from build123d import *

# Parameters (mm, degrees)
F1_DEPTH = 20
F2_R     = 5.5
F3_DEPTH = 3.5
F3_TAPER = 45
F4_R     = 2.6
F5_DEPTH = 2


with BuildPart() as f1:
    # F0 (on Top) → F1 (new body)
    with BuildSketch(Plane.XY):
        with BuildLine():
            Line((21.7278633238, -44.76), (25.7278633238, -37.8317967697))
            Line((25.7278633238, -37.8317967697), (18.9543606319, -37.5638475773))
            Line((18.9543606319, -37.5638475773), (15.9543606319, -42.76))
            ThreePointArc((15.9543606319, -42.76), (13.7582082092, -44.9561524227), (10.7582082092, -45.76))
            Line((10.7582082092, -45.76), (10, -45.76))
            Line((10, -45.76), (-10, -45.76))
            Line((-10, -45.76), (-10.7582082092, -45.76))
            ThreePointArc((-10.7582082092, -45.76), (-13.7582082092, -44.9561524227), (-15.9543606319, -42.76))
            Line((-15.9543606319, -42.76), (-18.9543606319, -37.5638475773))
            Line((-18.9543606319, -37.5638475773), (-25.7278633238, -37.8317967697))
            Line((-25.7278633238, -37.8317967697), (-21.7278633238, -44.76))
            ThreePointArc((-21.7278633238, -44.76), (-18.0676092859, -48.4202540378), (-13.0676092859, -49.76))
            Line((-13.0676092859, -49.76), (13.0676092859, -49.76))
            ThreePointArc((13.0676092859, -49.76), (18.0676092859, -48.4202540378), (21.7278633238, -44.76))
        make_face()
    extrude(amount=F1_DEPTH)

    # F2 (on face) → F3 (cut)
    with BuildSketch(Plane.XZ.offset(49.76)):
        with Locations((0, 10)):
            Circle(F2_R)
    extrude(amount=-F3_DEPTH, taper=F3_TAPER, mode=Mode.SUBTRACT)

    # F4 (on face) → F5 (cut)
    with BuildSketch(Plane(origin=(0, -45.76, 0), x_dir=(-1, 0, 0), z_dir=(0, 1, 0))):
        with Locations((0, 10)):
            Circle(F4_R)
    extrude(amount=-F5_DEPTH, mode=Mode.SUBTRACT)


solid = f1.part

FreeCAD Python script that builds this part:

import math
import FreeCAD as App
import Part
import Sketcher
from FreeCAD import Vector
Q = App.Units.Quantity

doc = App.newDocument("Part")
body = doc.addObject("PartDesign::Body", "Body")

# Sketch on XY plane
sketch1 = body.newObject("Sketcher::SketchObject", "Sketch")
sketch1.AttachmentSupport = (doc.getObject("XY_Plane"), [""])
sketch1.MapMode = "FlatFace"
sketch1.addGeometry([
    Part.LineSegment(Vector(21.727863, -44.76, 0), Vector(25.727863, -37.831797, 0)),  # 0
    Part.LineSegment(Vector(25.727863, -37.831797, 0), Vector(18.954361, -37.563848, 0)),  # 1
    Part.LineSegment(Vector(18.954361, -37.563848, 0), Vector(15.954361, -42.76, 0)),  # 2
    Part.ArcOfCircle(Part.Circle(Vector(10.758208, -39.76, 0), Vector(0, 0, 1), 6), math.radians(-90), math.radians(-30)),  # 3
    Part.LineSegment(Vector(10.758208, -45.76, 0), Vector(-10.758208, -45.76, 0)),  # 4
    Part.ArcOfCircle(Part.Circle(Vector(-10.758208, -39.76, 0), Vector(0, 0, 1), 6), math.radians(-150), math.radians(-90)),  # 5
    Part.LineSegment(Vector(-15.954361, -42.76, 0), Vector(-18.954361, -37.563848, 0)),  # 6
    Part.LineSegment(Vector(-18.954361, -37.563848, 0), Vector(-25.727863, -37.831797, 0)),  # 7
    Part.LineSegment(Vector(-25.727863, -37.831797, 0), Vector(-21.727863, -44.76, 0)),  # 8
    Part.ArcOfCircle(Part.Circle(Vector(-13.067609, -39.76, 0), Vector(0, 0, 1), 10), math.radians(-150), math.radians(-90)),  # 9
    Part.LineSegment(Vector(-13.067609, -49.76, 0), Vector(13.067609, -49.76, 0)),  # 10
    Part.ArcOfCircle(Part.Circle(Vector(13.067609, -39.76, 0), Vector(0, 0, 1), 10), math.radians(-90), math.radians(-30)),  # 11
], False)
sketch1.addConstraint([
    Sketcher.Constraint("Coincident", 0, 2, 1, 1),
    Sketcher.Constraint("Coincident", 1, 2, 2, 1),
    Sketcher.Constraint("Tangent", 2, 2, 3, 2),
    Sketcher.Constraint("Tangent", 3, 1, 4, 1),
    Sketcher.Constraint("Tangent", 4, 2, 5, 2),
    Sketcher.Constraint("Tangent", 5, 1, 6, 1),
    Sketcher.Constraint("Coincident", 6, 2, 7, 1),
    Sketcher.Constraint("Coincident", 7, 2, 8, 1),
    Sketcher.Constraint("Tangent", 8, 2, 9, 1),
    Sketcher.Constraint("Tangent", 9, 2, 10, 1),
    Sketcher.Constraint("Tangent", 10, 2, 11, 1),
    Sketcher.Constraint("Tangent", 11, 2, 0, 1),
    Sketcher.Constraint("Horizontal", 4),
    Sketcher.Constraint("Horizontal", 10),
    Sketcher.Constraint("Equal", 3, 5),
    Sketcher.Constraint("Equal", 9, 11),
    Sketcher.Constraint("Symmetric", 2, 2, 5, 1, -2),
    Sketcher.Constraint("Symmetric", 0, 2, 7, 2, -2),
    Sketcher.Constraint("Parallel", 0, 2),
    Sketcher.Constraint("Parallel", 6, 8),
    Sketcher.Constraint("Horizontal", 5, 3, 9, 3),
    Sketcher.Constraint("Horizontal", 1, 2, 6, 2),
    Sketcher.Constraint("Radius", 3, 6.0),
    Sketcher.Constraint("Radius", 9, 10.0),
    Sketcher.Constraint("Angle", 0, Q("60 deg")),
    Sketcher.Constraint("Distance", 0, 8.0),
    Sketcher.Constraint("Distance", 2, 6.0),
    Sketcher.Constraint("DistanceY", 3, 3, -1, 1, 39.76),
    Sketcher.Constraint("Distance", 1, 6.7788),
    Sketcher.Constraint("DistanceX", 10, 1, 10, 2, 26.135219),
])
pad1 = body.newObject("PartDesign::Pad", "Pad")
pad1.Profile = sketch1
pad1.Length = 20

# Sketch on XZ plane
sketch2 = body.newObject("Sketcher::SketchObject", "Sketch001")
sketch2.AttachmentSupport = (doc.getObject("XZ_Plane"), [""])
sketch2.MapMode = "FlatFace"
sketch2.AttachmentOffset = App.Placement(Vector(0, 0, 49.76), App.Rotation())
sketch2.addGeometry(Part.Circle(Vector(0, 10, 0), Vector(0, 0, 1), 5.5), False)
sketch2.addConstraint([
    Sketcher.Constraint("PointOnObject", 0, 3, -2),
    Sketcher.Constraint("Diameter", 0, 11.0),
    Sketcher.Constraint("DistanceY", -1, 1, 0, 3, 10.0),
])
pocket1 = body.newObject("PartDesign::Pocket", "Pocket")
pocket1.Profile = sketch2
pocket1.Length = 3.5
pocket1.TaperAngle = -45

# Sketch on XZ plane
sketch3 = body.newObject("Sketcher::SketchObject", "Sketch002")
sketch3.AttachmentSupport = (doc.getObject("XZ_Plane"), [""])
sketch3.MapMode = "FlatFace"
sketch3.AttachmentOffset = App.Placement(Vector(0, 0, 45.76), App.Rotation())
sketch3.addGeometry(Part.Circle(Vector(0, 10, 0), Vector(0, 0, 1), 2.6), False)
sketch3.addConstraint([
    Sketcher.Constraint("PointOnObject", 0, 3, -2),
    Sketcher.Constraint("Diameter", 0, 5.2),
    Sketcher.Constraint("DistanceY", -1, 1, 0, 3, 10.0),
])
pocket2 = body.newObject("PartDesign::Pocket", "Pocket001")
pocket2.Profile = sketch3
pocket2.Length = 2
pocket2.Reversed = True

doc.recompute()
